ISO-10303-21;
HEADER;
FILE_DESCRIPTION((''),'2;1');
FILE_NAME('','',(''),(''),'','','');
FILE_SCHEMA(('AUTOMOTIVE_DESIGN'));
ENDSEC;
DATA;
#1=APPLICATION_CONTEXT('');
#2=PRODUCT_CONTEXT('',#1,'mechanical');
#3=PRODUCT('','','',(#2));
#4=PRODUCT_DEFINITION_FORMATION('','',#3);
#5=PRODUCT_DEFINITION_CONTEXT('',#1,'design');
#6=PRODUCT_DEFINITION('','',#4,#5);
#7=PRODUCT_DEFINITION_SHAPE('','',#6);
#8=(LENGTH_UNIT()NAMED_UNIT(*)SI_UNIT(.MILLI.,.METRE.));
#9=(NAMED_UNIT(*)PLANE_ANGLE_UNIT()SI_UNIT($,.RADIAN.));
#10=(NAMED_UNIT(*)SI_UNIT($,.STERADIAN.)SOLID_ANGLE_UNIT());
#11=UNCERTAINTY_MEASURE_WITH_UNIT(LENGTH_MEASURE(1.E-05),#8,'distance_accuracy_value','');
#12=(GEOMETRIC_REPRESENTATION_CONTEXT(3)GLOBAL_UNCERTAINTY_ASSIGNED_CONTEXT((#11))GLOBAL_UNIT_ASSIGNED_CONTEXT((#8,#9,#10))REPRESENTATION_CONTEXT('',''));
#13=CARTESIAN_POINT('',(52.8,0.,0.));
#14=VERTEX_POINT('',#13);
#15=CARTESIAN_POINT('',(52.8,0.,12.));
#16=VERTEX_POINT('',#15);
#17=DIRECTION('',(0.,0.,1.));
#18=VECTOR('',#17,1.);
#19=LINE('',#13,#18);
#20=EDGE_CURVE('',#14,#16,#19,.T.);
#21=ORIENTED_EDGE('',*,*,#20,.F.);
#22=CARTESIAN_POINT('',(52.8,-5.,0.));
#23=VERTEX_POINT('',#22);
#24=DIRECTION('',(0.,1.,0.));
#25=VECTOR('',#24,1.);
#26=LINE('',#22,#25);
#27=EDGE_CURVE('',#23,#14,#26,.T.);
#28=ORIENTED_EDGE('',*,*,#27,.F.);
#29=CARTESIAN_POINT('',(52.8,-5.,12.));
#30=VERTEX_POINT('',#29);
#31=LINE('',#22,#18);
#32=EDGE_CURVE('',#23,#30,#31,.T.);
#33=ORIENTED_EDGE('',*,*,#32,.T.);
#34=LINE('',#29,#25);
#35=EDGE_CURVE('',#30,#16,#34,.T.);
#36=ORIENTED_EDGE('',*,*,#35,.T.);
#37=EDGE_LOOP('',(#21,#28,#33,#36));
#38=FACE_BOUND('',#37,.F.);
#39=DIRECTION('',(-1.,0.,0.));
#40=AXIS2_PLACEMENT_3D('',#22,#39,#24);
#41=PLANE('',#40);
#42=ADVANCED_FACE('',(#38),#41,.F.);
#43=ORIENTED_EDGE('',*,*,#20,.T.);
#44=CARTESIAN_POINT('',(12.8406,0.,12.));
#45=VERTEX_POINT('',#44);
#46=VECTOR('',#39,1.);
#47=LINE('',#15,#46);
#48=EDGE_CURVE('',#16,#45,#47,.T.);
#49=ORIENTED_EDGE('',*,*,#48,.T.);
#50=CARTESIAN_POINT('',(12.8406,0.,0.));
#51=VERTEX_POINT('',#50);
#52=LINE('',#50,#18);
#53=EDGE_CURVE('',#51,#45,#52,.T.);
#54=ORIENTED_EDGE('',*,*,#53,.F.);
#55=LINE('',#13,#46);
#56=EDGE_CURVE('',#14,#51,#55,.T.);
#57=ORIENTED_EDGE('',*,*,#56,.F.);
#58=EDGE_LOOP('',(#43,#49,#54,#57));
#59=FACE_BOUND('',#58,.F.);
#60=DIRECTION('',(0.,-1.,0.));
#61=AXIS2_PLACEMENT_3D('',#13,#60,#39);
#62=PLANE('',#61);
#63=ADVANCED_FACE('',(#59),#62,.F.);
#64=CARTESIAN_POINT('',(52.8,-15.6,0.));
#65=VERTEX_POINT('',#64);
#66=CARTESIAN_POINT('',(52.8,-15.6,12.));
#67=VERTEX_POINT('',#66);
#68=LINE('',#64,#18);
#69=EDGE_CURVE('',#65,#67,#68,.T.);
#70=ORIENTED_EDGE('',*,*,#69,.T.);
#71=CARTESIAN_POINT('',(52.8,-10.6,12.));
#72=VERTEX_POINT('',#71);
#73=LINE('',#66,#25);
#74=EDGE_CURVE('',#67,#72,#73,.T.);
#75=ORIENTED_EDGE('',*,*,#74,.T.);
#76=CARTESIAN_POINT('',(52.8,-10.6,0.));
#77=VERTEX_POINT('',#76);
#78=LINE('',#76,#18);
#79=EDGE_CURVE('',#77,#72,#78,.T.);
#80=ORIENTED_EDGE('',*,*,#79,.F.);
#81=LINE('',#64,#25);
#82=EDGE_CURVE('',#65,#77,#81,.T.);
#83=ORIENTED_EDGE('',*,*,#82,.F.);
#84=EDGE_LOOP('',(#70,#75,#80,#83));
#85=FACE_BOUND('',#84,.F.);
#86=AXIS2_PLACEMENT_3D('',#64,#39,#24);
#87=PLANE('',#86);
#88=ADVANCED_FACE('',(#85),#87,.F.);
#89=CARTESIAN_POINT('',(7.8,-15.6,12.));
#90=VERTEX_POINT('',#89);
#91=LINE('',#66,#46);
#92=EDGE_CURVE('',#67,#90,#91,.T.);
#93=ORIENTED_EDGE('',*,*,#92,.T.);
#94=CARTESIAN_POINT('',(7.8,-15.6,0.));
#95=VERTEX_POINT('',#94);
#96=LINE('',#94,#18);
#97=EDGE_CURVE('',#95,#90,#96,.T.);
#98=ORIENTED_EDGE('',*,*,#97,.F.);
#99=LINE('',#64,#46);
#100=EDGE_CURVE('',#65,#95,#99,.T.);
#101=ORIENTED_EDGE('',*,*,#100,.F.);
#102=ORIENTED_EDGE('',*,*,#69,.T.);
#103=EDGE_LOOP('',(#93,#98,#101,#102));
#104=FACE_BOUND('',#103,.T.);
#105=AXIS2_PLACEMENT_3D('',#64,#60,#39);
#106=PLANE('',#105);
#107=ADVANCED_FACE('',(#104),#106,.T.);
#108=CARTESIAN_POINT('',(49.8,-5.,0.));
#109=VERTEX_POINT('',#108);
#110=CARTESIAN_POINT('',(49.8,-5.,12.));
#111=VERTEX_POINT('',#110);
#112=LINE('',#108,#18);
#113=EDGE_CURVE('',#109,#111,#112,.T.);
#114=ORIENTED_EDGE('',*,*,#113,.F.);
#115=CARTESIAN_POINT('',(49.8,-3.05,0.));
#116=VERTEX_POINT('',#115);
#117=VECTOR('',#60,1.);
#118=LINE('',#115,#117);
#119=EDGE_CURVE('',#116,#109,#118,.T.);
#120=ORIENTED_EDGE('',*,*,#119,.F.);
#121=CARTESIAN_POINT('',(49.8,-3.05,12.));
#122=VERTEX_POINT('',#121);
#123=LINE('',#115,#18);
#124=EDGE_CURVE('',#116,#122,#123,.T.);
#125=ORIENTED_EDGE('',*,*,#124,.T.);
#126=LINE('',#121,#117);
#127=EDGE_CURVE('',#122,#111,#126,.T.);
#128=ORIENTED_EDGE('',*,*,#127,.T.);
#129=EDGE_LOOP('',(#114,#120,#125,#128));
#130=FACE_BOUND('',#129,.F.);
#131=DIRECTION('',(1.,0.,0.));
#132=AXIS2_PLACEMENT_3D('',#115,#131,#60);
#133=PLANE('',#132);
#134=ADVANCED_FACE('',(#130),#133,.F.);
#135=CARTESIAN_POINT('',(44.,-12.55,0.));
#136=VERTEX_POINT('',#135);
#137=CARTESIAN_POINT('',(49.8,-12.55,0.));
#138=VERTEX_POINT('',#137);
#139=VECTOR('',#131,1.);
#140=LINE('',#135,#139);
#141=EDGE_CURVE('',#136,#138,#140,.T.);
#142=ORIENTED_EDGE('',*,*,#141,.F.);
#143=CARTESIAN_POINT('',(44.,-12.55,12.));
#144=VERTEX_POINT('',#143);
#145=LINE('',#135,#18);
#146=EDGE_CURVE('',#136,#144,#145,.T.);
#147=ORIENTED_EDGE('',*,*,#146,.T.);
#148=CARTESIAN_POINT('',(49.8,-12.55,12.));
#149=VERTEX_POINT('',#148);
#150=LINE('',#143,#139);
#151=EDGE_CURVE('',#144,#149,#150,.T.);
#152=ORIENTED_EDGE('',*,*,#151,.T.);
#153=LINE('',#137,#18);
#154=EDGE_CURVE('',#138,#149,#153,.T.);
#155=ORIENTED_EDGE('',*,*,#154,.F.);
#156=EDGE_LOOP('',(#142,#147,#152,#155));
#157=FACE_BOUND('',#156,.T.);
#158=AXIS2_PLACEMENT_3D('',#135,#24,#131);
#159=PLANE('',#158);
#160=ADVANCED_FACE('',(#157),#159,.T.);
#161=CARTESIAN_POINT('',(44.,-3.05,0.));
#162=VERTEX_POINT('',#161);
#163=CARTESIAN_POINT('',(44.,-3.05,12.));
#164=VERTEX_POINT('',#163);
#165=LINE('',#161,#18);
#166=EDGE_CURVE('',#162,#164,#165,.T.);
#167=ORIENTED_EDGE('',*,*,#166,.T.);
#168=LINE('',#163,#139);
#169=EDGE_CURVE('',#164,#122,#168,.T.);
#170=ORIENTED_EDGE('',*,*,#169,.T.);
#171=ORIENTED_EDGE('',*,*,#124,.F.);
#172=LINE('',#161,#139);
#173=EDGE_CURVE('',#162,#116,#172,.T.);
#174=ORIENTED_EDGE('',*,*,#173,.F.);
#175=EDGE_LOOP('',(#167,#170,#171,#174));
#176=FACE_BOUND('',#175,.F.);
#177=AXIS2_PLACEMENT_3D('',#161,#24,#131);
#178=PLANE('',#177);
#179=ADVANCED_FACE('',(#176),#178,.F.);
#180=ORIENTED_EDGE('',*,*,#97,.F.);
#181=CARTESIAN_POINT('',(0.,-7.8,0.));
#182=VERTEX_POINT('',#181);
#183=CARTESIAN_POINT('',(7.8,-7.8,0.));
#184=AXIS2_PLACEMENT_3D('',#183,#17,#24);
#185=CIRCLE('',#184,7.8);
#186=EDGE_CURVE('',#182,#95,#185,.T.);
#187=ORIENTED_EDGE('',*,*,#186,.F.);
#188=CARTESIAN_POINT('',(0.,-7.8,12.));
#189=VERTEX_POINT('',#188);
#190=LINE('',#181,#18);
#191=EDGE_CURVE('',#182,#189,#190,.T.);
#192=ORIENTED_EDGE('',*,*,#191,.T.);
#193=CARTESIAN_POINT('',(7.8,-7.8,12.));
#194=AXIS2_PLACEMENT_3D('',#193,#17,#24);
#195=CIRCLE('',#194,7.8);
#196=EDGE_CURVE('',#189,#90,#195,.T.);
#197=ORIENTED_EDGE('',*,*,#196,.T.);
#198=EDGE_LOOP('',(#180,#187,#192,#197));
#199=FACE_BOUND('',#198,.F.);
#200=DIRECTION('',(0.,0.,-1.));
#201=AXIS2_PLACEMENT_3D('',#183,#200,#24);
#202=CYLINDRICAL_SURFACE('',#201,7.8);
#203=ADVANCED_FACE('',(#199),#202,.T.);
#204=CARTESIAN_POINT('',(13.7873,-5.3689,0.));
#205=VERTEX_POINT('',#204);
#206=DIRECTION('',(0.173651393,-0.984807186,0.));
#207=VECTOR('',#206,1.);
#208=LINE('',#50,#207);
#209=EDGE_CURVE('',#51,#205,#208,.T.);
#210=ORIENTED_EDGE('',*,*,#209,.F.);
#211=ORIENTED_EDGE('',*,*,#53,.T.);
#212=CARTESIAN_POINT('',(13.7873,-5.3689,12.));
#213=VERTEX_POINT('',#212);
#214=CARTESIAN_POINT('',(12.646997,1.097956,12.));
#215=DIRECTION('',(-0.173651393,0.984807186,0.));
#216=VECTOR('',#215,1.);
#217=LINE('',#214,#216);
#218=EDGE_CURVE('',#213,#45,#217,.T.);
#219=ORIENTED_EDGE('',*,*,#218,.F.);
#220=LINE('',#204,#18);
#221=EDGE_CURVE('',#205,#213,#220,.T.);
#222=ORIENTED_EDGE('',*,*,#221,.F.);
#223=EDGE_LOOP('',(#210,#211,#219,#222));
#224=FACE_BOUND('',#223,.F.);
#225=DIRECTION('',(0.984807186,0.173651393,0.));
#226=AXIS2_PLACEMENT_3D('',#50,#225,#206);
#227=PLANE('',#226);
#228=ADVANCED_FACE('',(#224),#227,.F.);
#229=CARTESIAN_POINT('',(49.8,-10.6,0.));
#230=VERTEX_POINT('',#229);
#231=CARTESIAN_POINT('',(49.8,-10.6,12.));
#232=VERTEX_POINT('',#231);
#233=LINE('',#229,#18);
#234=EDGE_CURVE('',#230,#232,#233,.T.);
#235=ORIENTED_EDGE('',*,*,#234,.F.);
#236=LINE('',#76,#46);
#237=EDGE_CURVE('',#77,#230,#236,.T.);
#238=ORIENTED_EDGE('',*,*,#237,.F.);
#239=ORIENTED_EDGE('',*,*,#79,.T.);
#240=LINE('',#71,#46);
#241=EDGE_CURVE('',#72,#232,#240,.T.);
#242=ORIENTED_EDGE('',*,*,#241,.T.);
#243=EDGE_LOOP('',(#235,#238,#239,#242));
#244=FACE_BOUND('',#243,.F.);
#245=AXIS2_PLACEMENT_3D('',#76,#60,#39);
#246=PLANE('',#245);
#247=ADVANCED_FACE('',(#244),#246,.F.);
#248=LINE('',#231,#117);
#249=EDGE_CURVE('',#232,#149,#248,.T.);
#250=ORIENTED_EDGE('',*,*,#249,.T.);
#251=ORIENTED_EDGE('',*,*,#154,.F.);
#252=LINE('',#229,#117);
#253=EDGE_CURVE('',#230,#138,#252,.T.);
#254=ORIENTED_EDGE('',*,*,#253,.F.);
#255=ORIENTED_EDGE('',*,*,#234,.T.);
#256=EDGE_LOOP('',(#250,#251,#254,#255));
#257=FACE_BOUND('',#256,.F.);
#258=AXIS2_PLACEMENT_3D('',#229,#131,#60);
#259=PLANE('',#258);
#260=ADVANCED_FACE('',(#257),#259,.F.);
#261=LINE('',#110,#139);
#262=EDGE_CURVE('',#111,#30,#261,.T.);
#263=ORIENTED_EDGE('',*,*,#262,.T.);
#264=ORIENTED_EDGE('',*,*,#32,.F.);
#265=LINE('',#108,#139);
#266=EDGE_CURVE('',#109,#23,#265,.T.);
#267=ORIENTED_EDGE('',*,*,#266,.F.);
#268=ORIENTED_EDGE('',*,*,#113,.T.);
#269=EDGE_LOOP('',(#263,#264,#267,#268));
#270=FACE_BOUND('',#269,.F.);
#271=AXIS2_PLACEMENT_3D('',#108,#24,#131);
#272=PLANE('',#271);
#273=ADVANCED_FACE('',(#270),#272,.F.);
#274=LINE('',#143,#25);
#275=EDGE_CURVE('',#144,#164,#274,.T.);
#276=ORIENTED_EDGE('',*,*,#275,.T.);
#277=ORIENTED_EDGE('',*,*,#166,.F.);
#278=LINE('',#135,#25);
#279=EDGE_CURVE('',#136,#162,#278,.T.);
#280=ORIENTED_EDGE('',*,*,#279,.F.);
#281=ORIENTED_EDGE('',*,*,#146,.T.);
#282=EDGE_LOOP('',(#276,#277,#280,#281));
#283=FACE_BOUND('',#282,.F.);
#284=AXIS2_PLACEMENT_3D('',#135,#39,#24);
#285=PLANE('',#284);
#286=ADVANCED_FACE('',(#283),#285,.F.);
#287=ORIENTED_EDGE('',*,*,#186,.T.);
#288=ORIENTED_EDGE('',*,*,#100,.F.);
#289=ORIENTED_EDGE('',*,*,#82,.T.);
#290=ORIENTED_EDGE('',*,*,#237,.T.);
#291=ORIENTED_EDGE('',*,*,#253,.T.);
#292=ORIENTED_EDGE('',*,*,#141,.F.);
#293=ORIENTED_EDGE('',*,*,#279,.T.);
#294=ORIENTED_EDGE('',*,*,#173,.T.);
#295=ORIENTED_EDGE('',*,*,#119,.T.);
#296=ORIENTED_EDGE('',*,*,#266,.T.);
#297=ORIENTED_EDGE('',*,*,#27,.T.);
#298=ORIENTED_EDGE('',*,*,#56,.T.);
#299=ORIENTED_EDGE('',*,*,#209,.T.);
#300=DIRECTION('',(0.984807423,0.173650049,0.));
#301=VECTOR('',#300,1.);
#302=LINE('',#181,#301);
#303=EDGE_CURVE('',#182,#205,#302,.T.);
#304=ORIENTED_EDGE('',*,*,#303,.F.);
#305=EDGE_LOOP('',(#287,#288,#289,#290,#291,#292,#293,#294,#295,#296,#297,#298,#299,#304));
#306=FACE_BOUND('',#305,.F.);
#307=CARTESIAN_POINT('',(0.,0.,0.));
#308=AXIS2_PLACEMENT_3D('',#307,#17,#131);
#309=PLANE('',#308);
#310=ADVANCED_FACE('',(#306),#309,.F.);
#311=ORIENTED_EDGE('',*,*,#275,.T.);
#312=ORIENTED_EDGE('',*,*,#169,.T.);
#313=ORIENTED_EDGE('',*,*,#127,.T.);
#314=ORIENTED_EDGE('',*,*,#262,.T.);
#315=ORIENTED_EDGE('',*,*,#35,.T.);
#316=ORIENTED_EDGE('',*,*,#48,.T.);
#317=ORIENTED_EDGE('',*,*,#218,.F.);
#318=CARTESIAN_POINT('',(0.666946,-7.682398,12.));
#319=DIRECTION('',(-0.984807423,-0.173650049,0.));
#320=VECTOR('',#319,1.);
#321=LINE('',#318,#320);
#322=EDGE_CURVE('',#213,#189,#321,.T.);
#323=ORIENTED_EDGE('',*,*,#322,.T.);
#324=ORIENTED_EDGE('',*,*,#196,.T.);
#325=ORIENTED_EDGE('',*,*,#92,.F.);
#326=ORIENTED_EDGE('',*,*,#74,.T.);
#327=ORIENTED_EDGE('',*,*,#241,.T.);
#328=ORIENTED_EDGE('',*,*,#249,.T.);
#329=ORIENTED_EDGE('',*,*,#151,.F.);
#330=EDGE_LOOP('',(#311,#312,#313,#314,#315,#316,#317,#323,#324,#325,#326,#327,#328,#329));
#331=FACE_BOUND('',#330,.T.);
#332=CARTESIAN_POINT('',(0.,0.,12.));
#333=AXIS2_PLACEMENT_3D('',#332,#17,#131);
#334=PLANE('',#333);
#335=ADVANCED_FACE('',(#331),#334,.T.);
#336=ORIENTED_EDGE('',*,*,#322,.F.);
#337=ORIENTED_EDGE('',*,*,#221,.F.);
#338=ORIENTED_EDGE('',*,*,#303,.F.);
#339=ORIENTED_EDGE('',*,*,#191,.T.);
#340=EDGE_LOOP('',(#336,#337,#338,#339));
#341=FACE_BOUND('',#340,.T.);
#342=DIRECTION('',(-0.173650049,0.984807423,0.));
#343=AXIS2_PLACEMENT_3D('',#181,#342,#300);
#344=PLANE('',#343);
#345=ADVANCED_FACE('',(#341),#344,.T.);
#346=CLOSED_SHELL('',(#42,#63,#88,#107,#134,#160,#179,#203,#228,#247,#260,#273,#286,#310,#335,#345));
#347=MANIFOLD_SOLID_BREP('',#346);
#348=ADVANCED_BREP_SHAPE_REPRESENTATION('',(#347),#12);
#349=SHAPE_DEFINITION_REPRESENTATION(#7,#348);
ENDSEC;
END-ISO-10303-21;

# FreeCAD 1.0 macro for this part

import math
import FreeCAD as App
import Part
import Sketcher
Q = App.Units.Quantity

doc = App.newDocument("Part")
body = doc.addObject("PartDesign::Body", "Body")

# Sketch on XY plane
sketch1 = doc.addObject("Sketcher::SketchObject", "Sketch")
body.addObject(sketch1)
sketch1.AttachmentSupport = (doc.XY_Plane, [""])
sketch1.MapMode = "FlatFace"
sketch1.addGeometry([
    Part.LineSegment(App.Vector(7.8, -15.6, 0), App.Vector(52.8, -15.6, 0)),  # 0
    Part.LineSegment(App.Vector(52.8, -15.6, 0), App.Vector(52.8, -10.6, 0)),  # 1
    Part.LineSegment(App.Vector(52.8, -10.6, 0), App.Vector(49.8, -10.6, 0)),  # 2
    Part.LineSegment(App.Vector(49.8, -10.6, 0), App.Vector(49.8, -12.6, 0)),  # 3
    Part.LineSegment(App.Vector(49.8, -12.6, 0), App.Vector(44, -12.6, 0)),  # 4
    Part.LineSegment(App.Vector(44, -12.6, 0), App.Vector(44, -3, 0)),  # 5
    Part.LineSegment(App.Vector(44, -3, 0), App.Vector(49.8, -3, 0)),  # 6
    Part.LineSegment(App.Vector(49.8, -3, 0), App.Vector(49.8, -5, 0)),  # 7
    Part.LineSegment(App.Vector(49.8, -5, 0), App.Vector(52.8, -5, 0)),  # 8
    Part.LineSegment(App.Vector(52.8, -5, 0), App.Vector(52.8, 0, 0)),  # 9
    Part.LineSegment(App.Vector(52.8, 0, 0), App.Vector(7.8, 0, 0)),  # 10
    Part.ArcOfCircle(Part.Circle(App.Vector(7.8, -7.8, 0), App.Vector(0, 0, 1), 7.8), math.radians(90), math.radians(270)),  # 11
], False)
sketch1.addConstraint([
    Sketcher.Constraint("Coincident", 0, 2, 1, 1),
    Sketcher.Constraint("Coincident", 1, 2, 2, 1),
    Sketcher.Constraint("Coincident", 2, 2, 3, 1),
    Sketcher.Constraint("Coincident", 3, 2, 4, 1),
    Sketcher.Constraint("Coincident", 4, 2, 5, 1),
    Sketcher.Constraint("Coincident", 5, 2, 6, 1),
    Sketcher.Constraint("Coincident", 6, 2, 7, 1),
    Sketcher.Constraint("Coincident", 7, 2, 8, 1),
    Sketcher.Constraint("Coincident", 8, 2, 9, 1),
    Sketcher.Constraint("Coincident", 9, 2, 10, 1),
    Sketcher.Constraint("Tangent", 10, 2, 11, 1),
    Sketcher.Constraint("Tangent", 11, 2, 0, 1),
    Sketcher.Constraint("Horizontal", 0),
    Sketcher.Constraint("Vertical", 1),
    Sketcher.Constraint("Horizontal", 2),
    Sketcher.Constraint("Vertical", 3),
    Sketcher.Constraint("Horizontal", 4),
    Sketcher.Constraint("Vertical", 5),
    Sketcher.Constraint("Horizontal", 6),
    Sketcher.Constraint("Vertical", 7),
    Sketcher.Constraint("Horizontal", 8),
    Sketcher.Constraint("Vertical", 9),
    Sketcher.Constraint("Horizontal", 10),
    Sketcher.Constraint("PointOnObject", 9, 2, -1),
    Sketcher.Constraint("Vertical", 3, 2, 6, 2),
    Sketcher.Constraint("Vertical", 1, 2, 8, 2),
    Sketcher.Constraint("Equal", 3, 7),
    Sketcher.Constraint("Equal", 1, 9),
    Sketcher.Constraint("Radius", 11, 7.8),
    Sketcher.Constraint("DistanceX", 0, 1, 0, 2, 45.0),
    Sketcher.Constraint("DistanceX", 2, 2, 2, 1, 3.0),
    Sketcher.Constraint("DistanceX", 4, 2, 4, 1, 5.8),
    Sketcher.Constraint("DistanceY", 5, 1, 5, 2, 9.5),
    Sketcher.Constraint("DistanceX", -1, 1, 4, 2, 44.0),
    Sketcher.Constraint("DistanceY", 2, 2, 7, 2, 5.6),
])
pad1 = doc.addObject("PartDesign::Pad", "Pad")
body.addObject(pad1)
pad1.Profile = sketch1
pad1.Length = 12

# Sketch on XY plane
sketch2 = doc.addObject("Sketcher::SketchObject", "Sketch001")
body.addObject(sketch2)
sketch2.AttachmentSupport = (doc.XY_Plane, [""])
sketch2.MapMode = "FlatFace"
sketch2.addGeometry([
    Part.LineSegment(App.Vector(14, -5, 0), App.Vector(0, -8, 0)),
    Part.ArcOfCircle(Part.Circle(App.Vector(8, -8, 0), App.Vector(0, 0, 1), 8), math.radians(90), math.radians(180)),
    Part.LineSegment(App.Vector(8, 0, 0), App.Vector(13, 0, 0)),
    Part.LineSegment(App.Vector(13, 0, 0), App.Vector(14, -5, 0)),
], False)
sketch2.addConstraint([
    Sketcher.Constraint("Coincident", 0, 2, 1, 2),
    Sketcher.Constraint("Tangent", 1, 1, 2, 1),
    Sketcher.Constraint("Coincident", 2, 2, 3, 1),
    Sketcher.Constraint("Coincident", 3, 2, 0, 1),
    Sketcher.Constraint("Horizontal", 2),
    Sketcher.Constraint("PointOnObject", 0, 2, -2),
    Sketcher.Constraint("PointOnObject", 1, 1, -1),
    Sketcher.Constraint("Perpendicular", 0, 3),
    Sketcher.Constraint("Horizontal", 1, 3, 0, 2),
    Sketcher.Constraint("Distance", 0, 14.0),
    Sketcher.Constraint("Radius", 1, 7.8),
    Sketcher.Constraint("Angle", 0, Q("-170 deg")),
])
pocket1 = doc.addObject("PartDesign::Pocket", "Pocket")
body.addObject(pocket1)
pocket1.Profile = sketch2
pocket1.Type = "ThroughAll"
pocket1.Reversed = True

doc.recompute()
